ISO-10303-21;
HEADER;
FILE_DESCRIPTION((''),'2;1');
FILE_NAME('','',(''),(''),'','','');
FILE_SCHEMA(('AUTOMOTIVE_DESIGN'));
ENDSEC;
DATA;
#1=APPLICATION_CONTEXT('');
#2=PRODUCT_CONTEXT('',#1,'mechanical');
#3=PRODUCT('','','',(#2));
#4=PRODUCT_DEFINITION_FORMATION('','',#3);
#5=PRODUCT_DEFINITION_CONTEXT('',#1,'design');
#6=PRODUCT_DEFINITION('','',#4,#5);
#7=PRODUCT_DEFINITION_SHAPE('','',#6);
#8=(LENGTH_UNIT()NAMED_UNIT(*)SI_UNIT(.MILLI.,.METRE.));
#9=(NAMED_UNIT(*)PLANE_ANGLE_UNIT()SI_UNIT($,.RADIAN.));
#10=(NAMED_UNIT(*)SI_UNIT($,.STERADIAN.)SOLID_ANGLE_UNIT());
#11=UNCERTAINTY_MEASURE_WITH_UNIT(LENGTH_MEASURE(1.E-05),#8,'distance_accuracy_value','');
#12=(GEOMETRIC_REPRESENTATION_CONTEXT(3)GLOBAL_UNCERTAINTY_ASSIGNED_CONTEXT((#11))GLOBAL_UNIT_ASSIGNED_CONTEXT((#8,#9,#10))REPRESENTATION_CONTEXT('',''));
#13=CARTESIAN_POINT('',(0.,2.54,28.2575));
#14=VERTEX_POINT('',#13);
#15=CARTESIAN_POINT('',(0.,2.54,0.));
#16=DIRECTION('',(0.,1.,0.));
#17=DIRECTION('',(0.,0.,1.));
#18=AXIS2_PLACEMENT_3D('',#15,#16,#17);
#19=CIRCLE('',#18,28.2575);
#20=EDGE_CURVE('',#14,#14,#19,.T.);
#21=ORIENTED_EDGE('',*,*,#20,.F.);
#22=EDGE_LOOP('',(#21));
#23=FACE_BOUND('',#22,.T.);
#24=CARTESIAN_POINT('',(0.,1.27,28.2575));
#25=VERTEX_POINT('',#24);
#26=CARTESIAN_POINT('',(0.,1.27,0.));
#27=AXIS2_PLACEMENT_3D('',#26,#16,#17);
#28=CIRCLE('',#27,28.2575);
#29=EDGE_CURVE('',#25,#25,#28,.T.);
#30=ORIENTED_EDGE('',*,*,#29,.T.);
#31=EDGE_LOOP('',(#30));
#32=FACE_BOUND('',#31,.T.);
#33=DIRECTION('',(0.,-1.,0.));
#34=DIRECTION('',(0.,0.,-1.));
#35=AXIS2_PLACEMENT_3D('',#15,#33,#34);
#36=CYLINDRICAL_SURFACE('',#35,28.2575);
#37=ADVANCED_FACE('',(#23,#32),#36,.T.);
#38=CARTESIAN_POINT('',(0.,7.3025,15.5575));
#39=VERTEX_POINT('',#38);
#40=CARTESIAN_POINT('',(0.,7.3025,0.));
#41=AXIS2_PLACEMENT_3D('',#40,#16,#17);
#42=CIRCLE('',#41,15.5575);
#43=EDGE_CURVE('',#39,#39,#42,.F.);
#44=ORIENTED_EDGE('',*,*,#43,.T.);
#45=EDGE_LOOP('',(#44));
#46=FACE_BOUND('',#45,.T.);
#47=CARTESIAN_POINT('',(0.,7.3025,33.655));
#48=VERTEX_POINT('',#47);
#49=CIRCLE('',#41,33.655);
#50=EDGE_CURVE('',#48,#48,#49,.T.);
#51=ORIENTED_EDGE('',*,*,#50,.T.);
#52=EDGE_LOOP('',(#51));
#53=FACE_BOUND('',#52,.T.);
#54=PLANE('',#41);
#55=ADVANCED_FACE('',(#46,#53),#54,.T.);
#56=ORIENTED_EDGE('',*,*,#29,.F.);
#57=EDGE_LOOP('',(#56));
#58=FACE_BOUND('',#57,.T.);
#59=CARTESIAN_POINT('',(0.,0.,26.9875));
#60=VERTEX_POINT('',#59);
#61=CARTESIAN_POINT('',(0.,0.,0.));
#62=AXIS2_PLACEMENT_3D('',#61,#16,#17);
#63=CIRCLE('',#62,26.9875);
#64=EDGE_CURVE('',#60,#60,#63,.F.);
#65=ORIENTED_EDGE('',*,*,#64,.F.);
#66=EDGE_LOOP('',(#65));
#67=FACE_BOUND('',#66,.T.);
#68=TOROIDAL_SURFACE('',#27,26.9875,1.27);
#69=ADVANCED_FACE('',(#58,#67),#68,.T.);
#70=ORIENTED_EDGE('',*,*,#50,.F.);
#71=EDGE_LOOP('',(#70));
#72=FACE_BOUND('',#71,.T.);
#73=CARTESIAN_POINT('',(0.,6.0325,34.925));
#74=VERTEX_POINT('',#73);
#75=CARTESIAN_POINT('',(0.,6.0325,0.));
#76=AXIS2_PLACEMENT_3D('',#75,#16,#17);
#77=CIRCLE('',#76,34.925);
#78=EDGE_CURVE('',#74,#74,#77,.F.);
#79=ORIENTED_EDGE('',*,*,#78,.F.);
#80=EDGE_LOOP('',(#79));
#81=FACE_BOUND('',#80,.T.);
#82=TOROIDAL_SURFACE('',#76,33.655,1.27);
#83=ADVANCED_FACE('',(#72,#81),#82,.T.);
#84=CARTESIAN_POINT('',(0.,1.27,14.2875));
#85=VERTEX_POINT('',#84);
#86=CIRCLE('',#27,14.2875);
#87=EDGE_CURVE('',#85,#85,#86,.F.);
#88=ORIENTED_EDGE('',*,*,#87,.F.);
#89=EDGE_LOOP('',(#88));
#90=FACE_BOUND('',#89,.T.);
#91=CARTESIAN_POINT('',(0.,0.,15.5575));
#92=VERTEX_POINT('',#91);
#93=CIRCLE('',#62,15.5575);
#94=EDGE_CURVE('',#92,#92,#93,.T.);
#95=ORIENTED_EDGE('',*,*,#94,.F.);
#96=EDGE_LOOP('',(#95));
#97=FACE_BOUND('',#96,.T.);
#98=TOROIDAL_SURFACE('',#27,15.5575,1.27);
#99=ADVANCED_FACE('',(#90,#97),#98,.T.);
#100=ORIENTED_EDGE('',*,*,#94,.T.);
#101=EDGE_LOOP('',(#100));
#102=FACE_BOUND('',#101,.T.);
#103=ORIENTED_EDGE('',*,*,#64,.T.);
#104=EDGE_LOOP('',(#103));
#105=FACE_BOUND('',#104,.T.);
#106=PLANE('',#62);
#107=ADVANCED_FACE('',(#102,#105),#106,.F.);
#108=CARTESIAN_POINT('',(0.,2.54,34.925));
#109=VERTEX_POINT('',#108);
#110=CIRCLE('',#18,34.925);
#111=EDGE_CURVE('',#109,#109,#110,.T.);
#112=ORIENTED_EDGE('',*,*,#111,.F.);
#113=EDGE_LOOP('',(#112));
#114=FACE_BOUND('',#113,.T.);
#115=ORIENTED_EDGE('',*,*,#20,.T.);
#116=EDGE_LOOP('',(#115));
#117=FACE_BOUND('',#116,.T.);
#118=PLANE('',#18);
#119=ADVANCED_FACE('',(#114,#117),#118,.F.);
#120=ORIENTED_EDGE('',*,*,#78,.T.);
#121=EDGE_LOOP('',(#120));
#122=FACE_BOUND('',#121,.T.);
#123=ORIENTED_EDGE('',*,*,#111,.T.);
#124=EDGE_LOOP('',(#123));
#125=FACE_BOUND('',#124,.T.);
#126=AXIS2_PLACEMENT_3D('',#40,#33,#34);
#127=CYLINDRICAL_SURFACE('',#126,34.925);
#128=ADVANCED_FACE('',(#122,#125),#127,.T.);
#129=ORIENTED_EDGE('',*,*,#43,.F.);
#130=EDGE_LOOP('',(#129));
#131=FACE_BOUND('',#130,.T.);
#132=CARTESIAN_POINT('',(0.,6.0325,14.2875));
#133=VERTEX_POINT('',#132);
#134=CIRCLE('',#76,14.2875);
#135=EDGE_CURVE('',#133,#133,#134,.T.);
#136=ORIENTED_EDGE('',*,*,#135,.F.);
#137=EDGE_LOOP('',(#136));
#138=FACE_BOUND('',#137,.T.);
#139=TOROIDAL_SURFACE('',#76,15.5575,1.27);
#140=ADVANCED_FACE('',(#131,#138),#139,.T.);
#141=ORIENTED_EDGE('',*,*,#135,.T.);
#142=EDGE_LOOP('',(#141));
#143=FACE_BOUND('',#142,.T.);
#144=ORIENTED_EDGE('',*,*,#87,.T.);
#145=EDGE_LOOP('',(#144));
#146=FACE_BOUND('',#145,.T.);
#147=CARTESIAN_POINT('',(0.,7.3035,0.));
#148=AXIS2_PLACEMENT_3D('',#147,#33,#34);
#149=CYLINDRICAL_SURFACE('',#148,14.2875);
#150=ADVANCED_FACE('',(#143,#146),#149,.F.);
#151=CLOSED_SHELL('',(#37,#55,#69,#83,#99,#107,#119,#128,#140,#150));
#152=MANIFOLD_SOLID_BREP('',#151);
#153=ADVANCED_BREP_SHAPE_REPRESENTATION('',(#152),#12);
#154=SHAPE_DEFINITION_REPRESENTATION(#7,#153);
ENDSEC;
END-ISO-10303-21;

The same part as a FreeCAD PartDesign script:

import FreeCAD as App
import Part
import Sketcher
Q = App.Units.Quantity


def edges_at(feature, points):
    """Names of the edges that pass closest to the given points."""
    edges = feature.Shape.Edges
    near = lambda p: min(range(len(edges)), key=lambda i: edges[i].distToShape(Part.Vertex(*p))[0])
    return sorted({f"Edge{near(p) + 1}" for p in points})

doc = App.newDocument("Part")
params = doc.addObject("Spreadsheet::Sheet", "Params")
for row, (alias, value) in enumerate([
    ("sketch1_diameter", "2.225 in"),
    ("pad1_length", "0.1 in"),
    ("sketch2_diameter", "2.75 in"),
    ("pad2_length", "0.1875 in"),
    ("sketch3_diameter", "1.125 in"),
    ("fillet_radius", "0.05 in"),
], start=1):
    params.set(f"A{row}", alias)
    params.set(f"B{row}", "=" + value)
    params.setAlias(f"B{row}", alias)

body = doc.addObject("PartDesign::Body", "Body")

# Sketch on XZ plane
sketch1 = body.newObject("Sketcher::SketchObject", "Sketch")
sketch1.AttachmentSupport = (doc.getObject("XZ_Plane"), [""])
sketch1.MapMode = "FlatFace"
sketch1.addGeometry(Part.Circle(App.Vector(0, 0, 0), App.Vector(0, 0, 1), 28.2575), False)
sketch1.addConstraint(Sketcher.Constraint("Coincident", 0, 3, -1, 1))
sketch1.addConstraint(Sketcher.Constraint("Diameter", 0, Q("2.225 in")))
sketch1.setExpression("Constraints[1]", "Params.sketch1_diameter")
pad1 = body.newObject("PartDesign::Pad", "Pad")
pad1.Profile = sketch1
pad1.setExpression("Length", "Params.pad1_length")
pad1.Reversed = True

# Sketch on XZ plane
sketch2 = body.newObject("Sketcher::SketchObject", "Sketch001")
sketch2.AttachmentSupport = (doc.getObject("XZ_Plane"), [""])
sketch2.MapMode = "FlatFace"
sketch2.AttachmentOffset = App.Placement(App.Vector(0, 0, -0.1 * 25.4), App.Rotation())
sketch2.addGeometry(Part.Circle(App.Vector(0, 0, 0), App.Vector(0, 0, 1), 34.925), False)
sketch2.addConstraint(Sketcher.Constraint("Coincident", 0, 3, -1, 1))
sketch2.addConstraint(Sketcher.Constraint("Diameter", 0, Q("2.75 in")))
sketch2.setExpression("Constraints[1]", "Params.sketch2_diameter")
pad2 = body.newObject("PartDesign::Pad", "Pad001")
pad2.Profile = sketch2
pad2.setExpression("Length", "Params.pad2_length")
pad2.Reversed = True

# Sketch on XZ plane
sketch3 = body.newObject("Sketcher::SketchObject", "Sketch002")
sketch3.AttachmentSupport = (doc.getObject("XZ_Plane"), [""])
sketch3.MapMode = "FlatFace"
sketch3.addGeometry(Part.Circle(App.Vector(0, 0, 0), App.Vector(0, 0, 1), 14.2875), False)
sketch3.addConstraint(Sketcher.Constraint("Coincident", 0, 3, -1, 1))
sketch3.addConstraint(Sketcher.Constraint("Diameter", 0, Q("1.125 in")))
sketch3.setExpression("Constraints[1]", "Params.sketch3_diameter")
pocket1 = body.newObject("PartDesign::Pocket", "Pocket")
pocket1.Profile = sketch3
pocket1.Type = "UpToFirst"
doc.recompute()

fillet = body.newObject("PartDesign::Fillet", "Fillet")
fillet.Base = (pocket1, edges_at(pocket1, [
    (-14.287, 7.303, 0),
    (-14.287, 0, 0),
    (-28.258, 0, 0),
    (-34.925, 7.303, 0),
]))
fillet.setExpression("Radius", "Params.fillet_radius")

doc.recompute()
